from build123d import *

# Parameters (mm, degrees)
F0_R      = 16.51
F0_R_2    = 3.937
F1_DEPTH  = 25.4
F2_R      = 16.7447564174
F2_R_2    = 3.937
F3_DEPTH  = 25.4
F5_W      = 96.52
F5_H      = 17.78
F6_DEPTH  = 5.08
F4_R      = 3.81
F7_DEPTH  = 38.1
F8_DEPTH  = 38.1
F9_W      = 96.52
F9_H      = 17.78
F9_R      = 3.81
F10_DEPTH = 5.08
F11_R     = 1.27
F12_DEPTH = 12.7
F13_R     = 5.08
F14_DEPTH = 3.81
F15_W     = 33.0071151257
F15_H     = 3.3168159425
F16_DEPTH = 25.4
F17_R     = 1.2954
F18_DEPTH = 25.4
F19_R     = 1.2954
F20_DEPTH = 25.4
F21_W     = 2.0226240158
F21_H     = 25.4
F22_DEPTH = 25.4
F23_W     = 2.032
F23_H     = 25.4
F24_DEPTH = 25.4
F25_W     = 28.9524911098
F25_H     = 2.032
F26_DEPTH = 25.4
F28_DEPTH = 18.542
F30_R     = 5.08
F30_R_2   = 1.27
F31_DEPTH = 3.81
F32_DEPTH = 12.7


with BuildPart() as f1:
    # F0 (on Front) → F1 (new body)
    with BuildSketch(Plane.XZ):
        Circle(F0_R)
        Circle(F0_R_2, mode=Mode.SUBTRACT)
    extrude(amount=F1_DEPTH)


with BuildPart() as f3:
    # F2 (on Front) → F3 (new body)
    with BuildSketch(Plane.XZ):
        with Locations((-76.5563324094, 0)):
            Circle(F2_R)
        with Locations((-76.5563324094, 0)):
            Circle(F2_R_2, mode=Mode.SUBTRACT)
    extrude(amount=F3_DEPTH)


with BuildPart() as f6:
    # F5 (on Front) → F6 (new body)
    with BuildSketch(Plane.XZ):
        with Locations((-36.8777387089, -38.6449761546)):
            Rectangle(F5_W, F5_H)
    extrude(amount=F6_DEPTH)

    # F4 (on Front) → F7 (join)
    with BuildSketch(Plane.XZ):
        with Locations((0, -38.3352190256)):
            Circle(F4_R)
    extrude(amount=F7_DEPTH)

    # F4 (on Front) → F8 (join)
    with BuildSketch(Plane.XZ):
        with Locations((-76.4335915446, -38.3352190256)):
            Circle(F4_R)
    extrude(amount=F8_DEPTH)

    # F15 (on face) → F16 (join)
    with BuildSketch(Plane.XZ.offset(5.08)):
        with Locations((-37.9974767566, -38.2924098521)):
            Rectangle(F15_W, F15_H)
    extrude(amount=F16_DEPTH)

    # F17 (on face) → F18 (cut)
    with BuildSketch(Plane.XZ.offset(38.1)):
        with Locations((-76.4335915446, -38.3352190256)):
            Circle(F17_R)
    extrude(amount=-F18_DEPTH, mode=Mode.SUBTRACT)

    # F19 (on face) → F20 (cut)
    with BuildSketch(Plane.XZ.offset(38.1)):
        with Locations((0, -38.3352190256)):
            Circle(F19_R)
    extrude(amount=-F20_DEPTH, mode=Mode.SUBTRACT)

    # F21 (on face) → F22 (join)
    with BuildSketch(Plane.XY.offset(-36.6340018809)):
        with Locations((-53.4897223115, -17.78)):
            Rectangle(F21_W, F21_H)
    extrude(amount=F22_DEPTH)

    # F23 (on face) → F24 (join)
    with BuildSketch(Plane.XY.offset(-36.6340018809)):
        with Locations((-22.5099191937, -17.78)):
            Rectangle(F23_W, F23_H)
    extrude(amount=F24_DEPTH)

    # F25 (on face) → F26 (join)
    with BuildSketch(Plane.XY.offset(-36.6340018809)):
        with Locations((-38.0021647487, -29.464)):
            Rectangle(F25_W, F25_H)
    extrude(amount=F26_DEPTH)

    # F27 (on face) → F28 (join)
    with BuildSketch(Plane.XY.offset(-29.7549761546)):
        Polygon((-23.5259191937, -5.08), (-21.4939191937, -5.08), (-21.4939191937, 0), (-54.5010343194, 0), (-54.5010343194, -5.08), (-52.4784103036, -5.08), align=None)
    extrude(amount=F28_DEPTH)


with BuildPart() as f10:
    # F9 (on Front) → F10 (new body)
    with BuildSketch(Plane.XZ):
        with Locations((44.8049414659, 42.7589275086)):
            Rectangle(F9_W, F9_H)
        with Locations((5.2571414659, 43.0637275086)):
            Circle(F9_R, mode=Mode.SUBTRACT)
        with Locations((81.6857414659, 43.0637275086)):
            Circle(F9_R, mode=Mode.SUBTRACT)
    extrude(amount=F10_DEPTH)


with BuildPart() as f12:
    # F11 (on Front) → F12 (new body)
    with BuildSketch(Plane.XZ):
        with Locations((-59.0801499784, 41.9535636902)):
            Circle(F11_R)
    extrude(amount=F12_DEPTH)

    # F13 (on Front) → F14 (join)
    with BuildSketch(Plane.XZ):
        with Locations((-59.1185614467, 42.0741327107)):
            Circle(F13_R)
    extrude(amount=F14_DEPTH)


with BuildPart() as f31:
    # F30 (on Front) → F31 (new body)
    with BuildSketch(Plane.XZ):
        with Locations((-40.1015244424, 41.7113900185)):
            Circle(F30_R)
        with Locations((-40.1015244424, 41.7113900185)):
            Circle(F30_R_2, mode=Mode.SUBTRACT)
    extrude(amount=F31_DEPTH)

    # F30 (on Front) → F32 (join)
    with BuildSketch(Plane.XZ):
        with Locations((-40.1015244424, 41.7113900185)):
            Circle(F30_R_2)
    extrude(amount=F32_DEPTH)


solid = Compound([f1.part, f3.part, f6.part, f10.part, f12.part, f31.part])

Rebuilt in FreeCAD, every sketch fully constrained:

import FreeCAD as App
import Part
import Sketcher

V = App.Vector
Q = App.Units.Quantity


def add_polygon(sketch, points):
    """Adds a closed chain of lines whose ends are joined by coincident constraints."""
    first, n = sketch.GeometryCount, len(points)
    for a, b in zip(points, points[1:] + points[:1]):
        sketch.addGeometry(Part.LineSegment(App.Vector(*a, 0), App.Vector(*b, 0)), False)
    for i in range(n):
        sketch.addConstraint(Sketcher.Constraint("Coincident", first + i, 2, first + (i + 1) % n, 1))

doc = App.newDocument("Part")
body = doc.addObject("PartDesign::Body", "Body")

# Sketch on XZ plane
sketch1 = doc.addObject("Sketcher::SketchObject", "Sketch")
body.addObject(sketch1)
sketch1.AttachmentSupport = (doc.XZ_Plane, [""])
sketch1.MapMode = "FlatFace"
sketch1.addGeometry([
    Part.Circle(V(0, 0, 0), V(0, 0, 1), 16.51),
    Part.Circle(V(0, 0, 0), V(0, 0, 1), 3.937),
], False)
sketch1.addConstraint([
    Sketcher.Constraint("Coincident", 0, 3, -1, 1),
    Sketcher.Constraint("Coincident", 1, 3, -1, 1),
    Sketcher.Constraint("Diameter", 0, Q("1.3 in")),
    Sketcher.Constraint("Diameter", 1, Q("0.31 in")),
])
pad1 = doc.addObject("PartDesign::Pad", "Pad")
body.addObject(pad1)
pad1.Profile = sketch1
pad1.Length = Q("1 in")
body2 = doc.addObject("PartDesign::Body", "Body001")

# Sketch on XZ plane
sketch2 = doc.addObject("Sketcher::SketchObject", "Sketch001")
body2.addObject(sketch2)
sketch2.AttachmentSupport = (doc.getObject("XZ_Plane001"), [""])
sketch2.MapMode = "FlatFace"
sketch2.addGeometry([
    Part.Circle(V(-76.556332, 0, 0), V(0, 0, 1), 16.744756),
    Part.Circle(V(-76.556332, 0, 0), V(0, 0, 1), 3.937),
], False)
sketch2.addConstraint([
    Sketcher.Constraint("Coincident", 1, 3, 0, 3),
    Sketcher.Constraint("PointOnObject", 0, 3, -1),
    Sketcher.Constraint("Diameter", 1, Q("0.31 in")),
    Sketcher.Constraint("Diameter", 0, 33.489513),
    Sketcher.Constraint("DistanceX", 0, 3, -1, 1, 76.556332),
])
pad2 = doc.addObject("PartDesign::Pad", "Pad001")
body2.addObject(pad2)
pad2.Profile = sketch2
pad2.Length = Q("1 in")
body3 = doc.addObject("PartDesign::Body", "Body002")

# Sketch on XZ plane
sketch3 = doc.addObject("Sketcher::SketchObject", "Sketch002")
body3.addObject(sketch3)
sketch3.AttachmentSupport = (doc.getObject("XZ_Plane002"), [""])
sketch3.MapMode = "FlatFace"
add_polygon(sketch3, [(-85.137739, -29.754976), (-85.137739, -47.534976), (11.382261, -47.534976), (11.382261, -29.754976)])  # lines 0-3
sketch3.addConstraint([
    Sketcher.Constraint("Vertical", 0),
    Sketcher.Constraint("Horizontal", 1),
    Sketcher.Constraint("Vertical", 2),
    Sketcher.Constraint("Horizontal", 3),
    Sketcher.Constraint("DistanceX", 1, 1, 1, 2, Q("3.8 in")),
    Sketcher.Constraint("DistanceY", 0, 2, 0, 1, Q("0.7 in")),
    Sketcher.Constraint("DistanceX", 0, 2, -1, 1, 85.137739),
    Sketcher.Constraint("DistanceY", 0, 2, -1, 1, 47.534976),
])
pad3 = doc.addObject("PartDesign::Pad", "Pad002")
body3.addObject(pad3)
pad3.Profile = sketch3
pad3.Length = Q("0.2 in")

# Sketch on XZ plane
sketch4 = doc.addObject("Sketcher::SketchObject", "Sketch003")
body3.addObject(sketch4)
sketch4.AttachmentSupport = (doc.getObject("XZ_Plane002"), [""])
sketch4.MapMode = "FlatFace"
sketch4.addGeometry(Part.Circle(V(0, -38.335219, 0), V(0, 0, 1), 3.81), False)
sketch4.addConstraint([
    Sketcher.Constraint("PointOnObject", 0, 3, -2),
    Sketcher.Constraint("Diameter", 0, Q("0.3 in")),
    Sketcher.Constraint("DistanceY", 0, 3, -1, 1, 38.335219),
])
pad4 = doc.addObject("PartDesign::Pad", "Pad003")
body3.addObject(pad4)
pad4.Profile = sketch4
pad4.Length = Q("1.5 in")

# Sketch on XZ plane
sketch5 = doc.addObject("Sketcher::SketchObject", "Sketch004")
body3.addObject(sketch5)
sketch5.AttachmentSupport = (doc.getObject("XZ_Plane002"), [""])
sketch5.MapMode = "FlatFace"
sketch5.addGeometry(Part.Circle(V(-76.433592, -38.335219, 0), V(0, 0, 1), 3.81), False)
sketch5.addConstraint([
    Sketcher.Constraint("Diameter", 0, Q("0.3 in")),
    Sketcher.Constraint("DistanceX", 0, 3, -1, 1, 76.433592),
    Sketcher.Constraint("DistanceY", 0, 3, -1, 1, 38.335219),
])
pad5 = doc.addObject("PartDesign::Pad", "Pad004")
body3.addObject(pad5)
pad5.Profile = sketch5
pad5.Length = Q("1.5 in")

# Sketch on XZ plane
sketch6 = doc.addObject("Sketcher::SketchObject", "Sketch005")
body3.addObject(sketch6)
sketch6.AttachmentSupport = (doc.getObject("XZ_Plane002"), [""])
sketch6.MapMode = "FlatFace"
sketch6.AttachmentOffset = App.Placement(V(0, 0, 0.2 * 25.4), App.Rotation())
add_polygon(sketch6, [(-54.501034, -36.634002), (-54.501034, -39.950818), (-21.493919, -39.950818), (-21.493919, -36.634002)])  # lines 0-3
sketch6.addConstraint([
    Sketcher.Constraint("Vertical", 0),
    Sketcher.Constraint("Horizontal", 1),
    Sketcher.Constraint("Vertical", 2),
    Sketcher.Constraint("Horizontal", 3),
    Sketcher.Constraint("DistanceY", 2, 2, -1, 1, 36.634002),
    Sketcher.Constraint("DistanceX", 1, 1, 1, 2, 33.007115),
    Sketcher.Constraint("DistanceY", 0, 2, 0, 1, 3.316816),
    Sketcher.Constraint("DistanceX", 1, 2, -1, 1, 21.493919),
])
pad6 = doc.addObject("PartDesign::Pad", "Pad005")
body3.addObject(pad6)
pad6.Profile = sketch6
pad6.Length = Q("1 in")

# Sketch on XZ plane
sketch7 = doc.addObject("Sketcher::SketchObject", "Sketch006")
body3.addObject(sketch7)
sketch7.AttachmentSupport = (doc.getObject("XZ_Plane002"), [""])
sketch7.MapMode = "FlatFace"
sketch7.AttachmentOffset = App.Placement(V(0, 0, 1.5 * 25.4), App.Rotation())
sketch7.addGeometry(Part.Circle(V(-76.433592, -38.335219, 0), V(0, 0, 1), 1.2954), False)
sketch7.addConstraint([
    Sketcher.Constraint("Diameter", 0, Q("0.102 in")),
    Sketcher.Constraint("DistanceX", 0, 3, -1, 1, 76.433592),
    Sketcher.Constraint("DistanceY", 0, 3, -1, 1, 38.335219),
])
pocket1 = doc.addObject("PartDesign::Pocket", "Pocket")
body3.addObject(pocket1)
pocket1.Profile = sketch7
pocket1.Length = Q("1 in")

# Sketch on XZ plane
sketch8 = doc.addObject("Sketcher::SketchObject", "Sketch007")
body3.addObject(sketch8)
sketch8.AttachmentSupport = (doc.getObject("XZ_Plane002"), [""])
sketch8.MapMode = "FlatFace"
sketch8.AttachmentOffset = App.Placement(V(0, 0, 1.5 * 25.4), App.Rotation())
sketch8.addGeometry(Part.Circle(V(0, -38.335219, 0), V(0, 0, 1), 1.2954), False)
sketch8.addConstraint([
    Sketcher.Constraint("PointOnObject", 0, 3, -2),
    Sketcher.Constraint("Diameter", 0, Q("0.102 in")),
    Sketcher.Constraint("DistanceY", 0, 3, -1, 1, 38.335219),
])
pocket2 = doc.addObject("PartDesign::Pocket", "Pocket001")
body3.addObject(pocket2)
pocket2.Profile = sketch8
pocket2.Length = Q("1 in")

# Sketch on XY plane
sketch9 = doc.addObject("Sketcher::SketchObject", "Sketch008")
body3.addObject(sketch9)
sketch9.AttachmentSupport = (doc.getObject("XY_Plane002"), [""])
sketch9.MapMode = "FlatFace"
sketch9.AttachmentOffset = App.Placement(V(0, 0, -36.634002), App.Rotation())
add_polygon(sketch9, [(-54.501034, -5.08), (-54.501034, -30.48), (-52.47841, -30.48), (-52.47841, -5.08)])  # lines 0-3
sketch9.addConstraint([
    Sketcher.Constraint("Vertical", 0),
    Sketcher.Constraint("Horizontal", 1),
    Sketcher.Constraint("Vertical", 2),
    Sketcher.Constraint("Horizontal", 3),
    Sketcher.Constraint("DistanceY", 0, 2, 0, 1, Q("1 in")),
    Sketcher.Constraint("DistanceY", 0, 2, -1, 1, Q("1.2 in")),
    Sketcher.Constraint("DistanceX", 1, 1, 1, 2, 2.022624),
    Sketcher.Constraint("DistanceX", 1, 2, -1, 1, 52.47841),
])
pad7 = doc.addObject("PartDesign::Pad", "Pad006")
body3.addObject(pad7)
pad7.Profile = sketch9
pad7.Length = Q("1 in")

# Sketch on XY plane
sketch10 = doc.addObject("Sketcher::SketchObject", "Sketch009")
body3.addObject(sketch10)
sketch10.AttachmentSupport = (doc.getObject("XY_Plane002"), [""])
sketch10.MapMode = "FlatFace"
sketch10.AttachmentOffset = App.Placement(V(0, 0, -36.634002), App.Rotation())
add_polygon(sketch10, [(-23.525919, -5.08), (-23.525919, -30.48), (-21.493919, -30.48), (-21.493919, -5.08)])  # lines 0-3
sketch10.addConstraint([
    Sketcher.Constraint("Vertical", 0),
    Sketcher.Constraint("Horizontal", 1),
    Sketcher.Constraint("Vertical", 2),
    Sketcher.Constraint("Horizontal", 3),
    Sketcher.Constraint("DistanceY", 0, 2, 0, 1, Q("1 in")),
    Sketcher.Constraint("DistanceX", 1, 1, 1, 2, Q("0.08 in")),
    Sketcher.Constraint("DistanceY", 0, 2, -1, 1, Q("1.2 in")),
    Sketcher.Constraint("DistanceX", 0, 2, -1, 1, 23.525919),
])
pad8 = doc.addObject("PartDesign::Pad", "Pad007")
body3.addObject(pad8)
pad8.Profile = sketch10
pad8.Length = Q("1 in")

# Sketch on XY plane
sketch11 = doc.addObject("Sketcher::SketchObject", "Sketch010")
body3.addObject(sketch11)
sketch11.AttachmentSupport = (doc.getObject("XY_Plane002"), [""])
sketch11.MapMode = "FlatFace"
sketch11.AttachmentOffset = App.Placement(V(0, 0, -36.634002), App.Rotation())
add_polygon(sketch11, [(-52.47841, -28.448), (-52.47841, -30.48), (-23.525919, -30.48), (-23.525919, -28.448)])  # lines 0-3
sketch11.addConstraint([
    Sketcher.Constraint("Vertical", 0),
    Sketcher.Constraint("Horizontal", 1),
    Sketcher.Constraint("Vertical", 2),
    Sketcher.Constraint("Horizontal", 3),
    Sketcher.Constraint("DistanceY", 0, 2, 0, 1, Q("0.08 in")),
    Sketcher.Constraint("DistanceY", 0, 2, -1, 1, Q("1.2 in")),
    Sketcher.Constraint("DistanceX", 1, 1, 1, 2, 28.952491),
    Sketcher.Constraint("DistanceX", 0, 2, -1, 1, 52.47841),
])
pad9 = doc.addObject("PartDesign::Pad", "Pad008")
body3.addObject(pad9)
pad9.Profile = sketch11
pad9.Length = Q("1 in")

# Sketch on XY plane
sketch12 = doc.addObject("Sketcher::SketchObject", "Sketch011")
body3.addObject(sketch12)
sketch12.AttachmentSupport = (doc.getObject("XY_Plane002"), [""])
sketch12.MapMode = "FlatFace"
sketch12.AttachmentOffset = App.Placement(V(0, 0, -29.754976), App.Rotation())
add_polygon(sketch12, [(-21.493919, -5.08), (-21.493919, 0), (-54.501034, 0), (-54.501034, -5.08)])  # lines 0-3
sketch12.addConstraint([
    Sketcher.Constraint("Vertical", 0),
    Sketcher.Constraint("Horizontal", 1),
    Sketcher.Constraint("Vertical", 2),
    Sketcher.Constraint("Horizontal", 3),
    Sketcher.Constraint("PointOnObject", 0, 2, -1),
    Sketcher.Constraint("DistanceY", 0, 1, 0, 2, Q("0.2 in")),
    Sketcher.Constraint("DistanceX", 1, 2, 1, 1, 33.007115),
    Sketcher.Constraint("DistanceX", 0, 2, -1, 1, 21.493919),
])
pad10 = doc.addObject("PartDesign::Pad", "Pad009")
body3.addObject(pad10)
pad10.Profile = sketch12
pad10.Length = Q("0.73 in")
body4 = doc.addObject("PartDesign::Body", "Body003")

# Sketch on XZ plane
sketch13 = doc.addObject("Sketcher::SketchObject", "Sketch012")
body4.addObject(sketch13)
sketch13.AttachmentSupport = (doc.getObject("XZ_Plane003"), [""])
sketch13.MapMode = "FlatFace"
add_polygon(sketch13, [(-3.455059, 51.648928), (-3.455059, 33.868928), (93.064941, 33.868928), (93.064941, 51.648928)])  # lines 0-3
sketch13.addGeometry(Part.Circle(V(5.257141, 43.063728, 0), V(0, 0, 1), 3.81), False)  # 4
sketch13.addGeometry(Part.Circle(V(81.685741, 43.063728, 0), V(0, 0, 1), 3.81), False)  # 5
sketch13.addConstraint([
    Sketcher.Constraint("Vertical", 0),
    Sketcher.Constraint("Horizontal", 1),
    Sketcher.Constraint("Vertical", 2),
    Sketcher.Constraint("Horizontal", 3),
    Sketcher.Constraint("Equal", 4, 5),
    Sketcher.Constraint("Horizontal", 4, 3, 5, 3),
    Sketcher.Constraint("Diameter", 4, Q("0.3 in")),
    Sketcher.Constraint("DistanceX", 1, 1, 1, 2, Q("3.8 in")),
    Sketcher.Constraint("DistanceY", 0, 2, 0, 1, Q("0.7 in")),
    Sketcher.Constraint("DistanceX", 4, 3, 5, 3, Q("3.009 in")),
    Sketcher.Constraint("DistanceX", 0, 2, 4, 3, Q("0.343 in")),
    Sketcher.Constraint("DistanceY", 0, 2, 4, 3, Q("0.362 in")),
    Sketcher.Constraint("DistanceX", -1, 1, 4, 3, 5.257141),
    Sketcher.Constraint("DistanceY", -1, 1, 4, 3, 43.063728),
])
pad11 = doc.addObject("PartDesign::Pad", "Pad010")
body4.addObject(pad11)
pad11.Profile = sketch13
pad11.Length = Q("0.2 in")
body5 = doc.addObject("PartDesign::Body", "Body004")

# Sketch on XZ plane
sketch14 = doc.addObject("Sketcher::SketchObject", "Sketch013")
body5.addObject(sketch14)
sketch14.AttachmentSupport = (doc.getObject("XZ_Plane004"), [""])
sketch14.MapMode = "FlatFace"
sketch14.addGeometry(Part.Circle(V(-59.08015, 41.953564, 0), V(0, 0, 1), 1.27), False)
sketch14.addConstraint([
    Sketcher.Constraint("Diameter", 0, Q("0.1 in")),
    Sketcher.Constraint("DistanceX", 0, 3, -1, 1, 59.08015),
    Sketcher.Constraint("DistanceY", -1, 1, 0, 3, 41.953564),
])
pad12 = doc.addObject("PartDesign::Pad", "Pad011")
body5.addObject(pad12)
pad12.Profile = sketch14
pad12.Length = Q("0.5 in")

# Sketch on XZ plane
sketch15 = doc.addObject("Sketcher::SketchObject", "Sketch014")
body5.addObject(sketch15)
sketch15.AttachmentSupport = (doc.getObject("XZ_Plane004"), [""])
sketch15.MapMode = "FlatFace"
sketch15.addGeometry(Part.Circle(V(-59.118561, 42.074133, 0), V(0, 0, 1), 5.08), False)
sketch15.addConstraint([
    Sketcher.Constraint("Diameter", 0, Q("0.4 in")),
    Sketcher.Constraint("DistanceX", 0, 3, -1, 1, 59.118561),
    Sketcher.Constraint("DistanceY", -1, 1, 0, 3, 42.074133),
])
pad13 = doc.addObject("PartDesign::Pad", "Pad012")
body5.addObject(pad13)
pad13.Profile = sketch15
pad13.Length = Q("0.15 in")
body6 = doc.addObject("PartDesign::Body", "Body005")

# Sketch on XZ plane
sketch16 = doc.addObject("Sketcher::SketchObject", "Sketch015")
body6.addObject(sketch16)
sketch16.AttachmentSupport = (doc.getObject("XZ_Plane005"), [""])
sketch16.MapMode = "FlatFace"
sketch16.addGeometry([
    Part.Circle(V(-40.101524, 41.71139, 0), V(0, 0, 1), 5.08),
    Part.Circle(V(-40.101524, 41.71139, 0), V(0, 0, 1), 1.27),
], False)
sketch16.addConstraint([
    Sketcher.Constraint("Coincident", 1, 3, 0, 3),
    Sketcher.Constraint("Diameter", 0, Q("0.4 in")),
    Sketcher.Constraint("Diameter", 1, Q("0.1 in")),
    Sketcher.Constraint("DistanceX", 0, 3, -1, 1, Q("1.5788002 in")),
    Sketcher.Constraint("DistanceY", -1, 1, 0, 3, 41.71139),
])
pad14 = doc.addObject("PartDesign::Pad", "Pad013")
body6.addObject(pad14)
pad14.Profile = sketch16
pad14.Length = Q("0.15 in")

# Sketch on XZ plane
sketch17 = doc.addObject("Sketcher::SketchObject", "Sketch016")
body6.addObject(sketch17)
sketch17.AttachmentSupport = (doc.getObject("XZ_Plane005"), [""])
sketch17.MapMode = "FlatFace"
sketch17.addGeometry(Part.Circle(V(-40.101524, 41.71139, 0), V(0, 0, 1), 1.27), False)
sketch17.addConstraint([
    Sketcher.Constraint("Diameter", 0, Q("0.1 in")),
    Sketcher.Constraint("DistanceX", 0, 3, -1, 1, Q("1.5788002 in")),
    Sketcher.Constraint("DistanceY", -1, 1, 0, 3, 41.71139),
])
pad15 = doc.addObject("PartDesign::Pad", "Pad014")
body6.addObject(pad15)
pad15.Profile = sketch17
pad15.Length = Q("0.5 in")

doc.recompute()
